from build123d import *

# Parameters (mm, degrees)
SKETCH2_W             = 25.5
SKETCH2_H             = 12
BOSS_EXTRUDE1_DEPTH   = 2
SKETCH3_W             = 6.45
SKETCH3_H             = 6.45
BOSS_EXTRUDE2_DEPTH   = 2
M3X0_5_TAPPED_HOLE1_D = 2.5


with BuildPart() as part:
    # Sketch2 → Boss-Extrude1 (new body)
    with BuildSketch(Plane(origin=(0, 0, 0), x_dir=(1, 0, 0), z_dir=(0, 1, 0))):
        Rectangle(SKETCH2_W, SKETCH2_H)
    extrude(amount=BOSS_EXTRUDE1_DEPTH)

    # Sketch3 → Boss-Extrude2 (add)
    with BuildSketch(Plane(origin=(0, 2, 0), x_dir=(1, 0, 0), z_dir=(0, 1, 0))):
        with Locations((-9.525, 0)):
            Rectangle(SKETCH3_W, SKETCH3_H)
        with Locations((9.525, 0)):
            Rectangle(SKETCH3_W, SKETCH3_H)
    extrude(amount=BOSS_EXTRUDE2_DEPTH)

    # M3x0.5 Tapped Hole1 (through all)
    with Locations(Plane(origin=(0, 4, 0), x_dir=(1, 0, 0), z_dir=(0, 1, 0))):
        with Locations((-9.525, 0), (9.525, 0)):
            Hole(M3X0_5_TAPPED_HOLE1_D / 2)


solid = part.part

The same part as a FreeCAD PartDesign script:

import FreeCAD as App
import Part
import Sketcher


def add_polygon(sketch, points):
    """Adds a closed chain of lines whose ends are joined by coincident constraints."""
    first, n = sketch.GeometryCount, len(points)
    for a, b in zip(points, points[1:] + points[:1]):
        sketch.addGeometry(Part.LineSegment(App.Vector(*a, 0), App.Vector(*b, 0)), False)
    for i in range(n):
        sketch.addConstraint(Sketcher.Constraint("Coincident", first + i, 2, first + (i + 1) % n, 1))

doc = App.newDocument("Part")
body = doc.addObject("PartDesign::Body", "Body")

sketch1 = body.newObject("Sketcher::SketchObject", "Sketch")
sketch1.AttachmentSupport = (doc.getObject("XZ_Plane"), [""])
sketch1.MapMode = "FlatFace"
add_polygon(sketch1, [(-13, -6), (-13, 6), (13, 6), (13, -6)])
sketch1.addConstraint(Sketcher.Constraint("Vertical", 0))
sketch1.addConstraint(Sketcher.Constraint("Horizontal", 1))
sketch1.addConstraint(Sketcher.Constraint("Vertical", 2))
sketch1.addConstraint(Sketcher.Constraint("Horizontal", 3))
sketch1.addConstraint(Sketcher.Constraint("Symmetric", 0, 2, 2, 2, -1, 1))
sketch1.addConstraint(Sketcher.Constraint("DistanceY", 0, 1, 0, 2, 12.0))
sketch1.addConstraint(Sketcher.Constraint("DistanceX", 1, 1, 1, 2, 25.5))
pad1 = body.newObject("PartDesign::Pad", "Pad")
pad1.Profile = sketch1
pad1.Length = 2
pad1.Reversed = True

sketch2 = body.newObject("Sketcher::SketchObject", "Sketch001")
sketch2.AttachmentSupport = (doc.getObject("XZ_Plane"), [""])
sketch2.MapMode = "FlatFace"
sketch2.AttachmentOffset = App.Placement(App.Vector(0, 0, -2), App.Rotation())
add_polygon(sketch2, [(-13, -3), (-13, 3), (-6, 3), (-6, -3)])
add_polygon(sketch2, [(6, -3), (6, 3), (13, 3), (13, -3)])
sketch2.addConstraint(Sketcher.Constraint("Vertical", 0))
sketch2.addConstraint(Sketcher.Constraint("Horizontal", 1))
sketch2.addConstraint(Sketcher.Constraint("Vertical", 2))
sketch2.addConstraint(Sketcher.Constraint("Horizontal", 3))
sketch2.addConstraint(Sketcher.Constraint("Vertical", 4))
sketch2.addConstraint(Sketcher.Constraint("Horizontal", 5))
sketch2.addConstraint(Sketcher.Constraint("Vertical", 6))
sketch2.addConstraint(Sketcher.Constraint("Horizontal", 7))
sketch2.addConstraint(Sketcher.Constraint("Symmetric", 2, 2, 4, 2, -1, 1))
sketch2.addConstraint(Sketcher.Constraint("Symmetric", 0, 2, 6, 2, -1, 1))
sketch2.addConstraint(Sketcher.Constraint("Horizontal", 1, 2, 4, 2))
sketch2.addConstraint(Sketcher.Constraint("Equal", 7, 0))
sketch2.addConstraint(Sketcher.Constraint("DistanceX", 1, 1, 1, 2, 6.45))
sketch2.addConstraint(Sketcher.Constraint("DistanceX", 1, 2, -1, 1, 6.3))
pad2 = body.newObject("PartDesign::Pad", "Pad001")
pad2.Profile = sketch2
pad2.Length = 2
pad2.Reversed = True

sketch3 = body.newObject("Sketcher::SketchObject", "Sketch002")
sketch3.AttachmentSupport = (doc.getObject("XZ_Plane"), [""])
sketch3.MapMode = "FlatFace"
sketch3.AttachmentOffset = App.Placement(App.Vector(0, 0, -4), App.Rotation())
sketch3.addGeometry(Part.Circle(App.Vector(-9.5, 0, 0), App.Vector(0, 0, 1), 1.2), False)
sketch3.addGeometry(Part.Circle(App.Vector(9.5, 0, 0), App.Vector(0, 0, 1), 1.2), False)
sketch3.addConstraint(Sketcher.Constraint("Equal", 0, 1))
sketch3.addConstraint(Sketcher.Constraint("Symmetric", 0, 3, 1, 3, -1, 1))
sketch3.addConstraint(Sketcher.Constraint("PointOnObject", 0, 3, -1))
sketch3.addConstraint(Sketcher.Constraint("Diameter", 0, 2.5))
sketch3.addConstraint(Sketcher.Constraint("DistanceX", 0, 3, 1, 3, 19.05))
doc.recompute()
hole = body.newObject("PartDesign::Hole", "Hole")
hole.Profile = sketch3
hole.ThreadType = "None"
hole.Diameter = 2.5
hole.DepthType = "ThroughAll"
hole.Reversed = True

doc.recompute()
